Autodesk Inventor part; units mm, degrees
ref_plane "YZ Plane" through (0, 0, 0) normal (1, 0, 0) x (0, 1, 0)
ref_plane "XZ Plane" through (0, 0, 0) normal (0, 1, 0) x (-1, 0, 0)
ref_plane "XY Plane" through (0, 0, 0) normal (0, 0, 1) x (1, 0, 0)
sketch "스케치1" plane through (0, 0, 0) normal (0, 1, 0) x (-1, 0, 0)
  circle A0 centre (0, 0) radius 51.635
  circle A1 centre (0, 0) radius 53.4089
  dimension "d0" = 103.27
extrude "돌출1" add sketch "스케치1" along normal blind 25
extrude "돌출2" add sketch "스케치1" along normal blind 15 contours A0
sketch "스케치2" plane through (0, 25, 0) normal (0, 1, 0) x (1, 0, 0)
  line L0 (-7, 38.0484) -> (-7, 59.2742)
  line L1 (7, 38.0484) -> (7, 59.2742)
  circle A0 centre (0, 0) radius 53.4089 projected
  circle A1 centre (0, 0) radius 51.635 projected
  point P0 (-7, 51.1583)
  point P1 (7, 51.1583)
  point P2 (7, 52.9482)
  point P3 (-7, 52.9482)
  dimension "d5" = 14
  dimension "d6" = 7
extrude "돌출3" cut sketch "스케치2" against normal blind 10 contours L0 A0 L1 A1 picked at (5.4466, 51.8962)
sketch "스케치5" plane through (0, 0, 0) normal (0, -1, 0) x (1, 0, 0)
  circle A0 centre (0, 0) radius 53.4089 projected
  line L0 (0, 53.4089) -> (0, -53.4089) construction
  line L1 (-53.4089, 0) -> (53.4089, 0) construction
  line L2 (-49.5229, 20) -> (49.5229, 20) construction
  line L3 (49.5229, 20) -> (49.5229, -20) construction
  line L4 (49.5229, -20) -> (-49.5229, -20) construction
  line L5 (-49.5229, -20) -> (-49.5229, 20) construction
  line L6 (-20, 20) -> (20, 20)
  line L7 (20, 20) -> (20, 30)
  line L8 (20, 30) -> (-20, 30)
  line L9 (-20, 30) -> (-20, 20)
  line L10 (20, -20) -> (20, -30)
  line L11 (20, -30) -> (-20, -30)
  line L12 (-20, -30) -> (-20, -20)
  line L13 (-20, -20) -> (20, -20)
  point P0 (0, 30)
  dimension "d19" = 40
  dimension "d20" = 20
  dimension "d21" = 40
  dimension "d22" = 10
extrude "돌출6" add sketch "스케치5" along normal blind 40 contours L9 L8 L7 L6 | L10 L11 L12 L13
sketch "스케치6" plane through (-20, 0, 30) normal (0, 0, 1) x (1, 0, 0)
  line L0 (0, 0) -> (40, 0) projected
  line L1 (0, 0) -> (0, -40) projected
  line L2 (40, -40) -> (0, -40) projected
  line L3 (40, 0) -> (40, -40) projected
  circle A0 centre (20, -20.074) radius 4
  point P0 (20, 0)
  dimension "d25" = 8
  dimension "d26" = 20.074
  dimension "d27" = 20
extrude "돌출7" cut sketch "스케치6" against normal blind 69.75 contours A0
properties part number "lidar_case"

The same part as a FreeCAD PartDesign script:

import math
import FreeCAD as App
import Part
import Sketcher

V = App.Vector

doc = App.newDocument("Part")
body = doc.addObject("PartDesign::Body", "Body")

# Sketch on XZ plane
sketch1 = body.newObject("Sketcher::SketchObject", "Sketch")
sketch1.AttachmentSupport = (doc.getObject("XZ_Plane"), [""])
sketch1.MapMode = "FlatFace"
sketch1.addGeometry([
    Part.Circle(V(0, 0, 0), V(0, 0, 1), 53),
    Part.Circle(V(0, 0, 0), V(0, 0, 1), 52),
], False)
sketch1.addConstraint([
    Sketcher.Constraint("Coincident", 0, 3, -1, 1),
    Sketcher.Constraint("Coincident", 1, 3, -1, 1),
    Sketcher.Constraint("Diameter", 1, 103.27),
    Sketcher.Constraint("Diameter", 0, 106.8178),
])
pad1 = body.newObject("PartDesign::Pad", "Pad")
pad1.Profile = sketch1
pad1.Length = 25
pad1.Reversed = True

# Sketch on XZ plane
sketch2 = body.newObject("Sketcher::SketchObject", "Sketch001")
sketch2.AttachmentSupport = (doc.getObject("XZ_Plane"), [""])
sketch2.MapMode = "FlatFace"
sketch2.addGeometry(Part.Circle(V(0, 0, 0), V(0, 0, 1), 52), False)
sketch2.addConstraint([
    Sketcher.Constraint("Coincident", 0, 3, -1, 1),
    Sketcher.Constraint("Diameter", 0, 103.27),
])
pad2 = body.newObject("PartDesign::Pad", "Pad001")
pad2.Profile = sketch2
pad2.Length = 15
pad2.Reversed = True

# Sketch on XZ plane
sketch3 = body.newObject("Sketcher::SketchObject", "Sketch002")
sketch3.AttachmentSupport = (doc.getObject("XZ_Plane"), [""])
sketch3.MapMode = "FlatFace"
sketch3.AttachmentOffset = App.Placement(V(0, 0, -25), App.Rotation())
sketch3.addGeometry([
    Part.LineSegment(V(-7, -52.9, 0), V(-7, -51.2, 0)),
    Part.ArcOfCircle(Part.Circle(V(0, 0, 0), V(0, 0, 1), 51.6), math.radians(-97.79), math.radians(-82.21)),
    Part.LineSegment(V(7, -51.2, 0), V(7, -52.9, 0)),
    Part.ArcOfCircle(Part.Circle(V(0, 0, 0), V(0, 0, 1), 53.4), math.radians(-97.53), math.radians(-82.47)),
], False)
sketch3.addConstraint([
    Sketcher.Constraint("Coincident", 0, 2, 1, 1),
    Sketcher.Constraint("Coincident", 1, 2, 2, 1),
    Sketcher.Constraint("Coincident", 2, 2, 3, 2),
    Sketcher.Constraint("Coincident", 3, 1, 0, 1),
    Sketcher.Constraint("Vertical", 0),
    Sketcher.Constraint("Vertical", 2),
    Sketcher.Constraint("Coincident", 1, 3, -1, 1),
    Sketcher.Constraint("Coincident", 3, 3, -1, 1),
    Sketcher.Constraint("Horizontal", 0, 2, 1, 2),
    Sketcher.Constraint("DistanceX", 0, 2, -1, 1, 7.0),
    Sketcher.Constraint("Radius", 1, 51.635),
    Sketcher.Constraint("Radius", 3, 53.409),
])
pocket1 = body.newObject("PartDesign::Pocket", "Pocket")
pocket1.Profile = sketch3
pocket1.Length = 10
pocket1.Reversed = True

# Sketch on XZ plane
sketch4 = body.newObject("Sketcher::SketchObject", "Sketch003")
sketch4.AttachmentSupport = (doc.getObject("XZ_Plane"), [""])
sketch4.MapMode = "FlatFace"
sketch4.addGeometry([
    Part.LineSegment(V(-20, 30, 0), V(-20, 20, 0)),  # 0
    Part.LineSegment(V(-20, 20, 0), V(20, 20, 0)),  # 1
    Part.LineSegment(V(20, 20, 0), V(20, 30, 0)),  # 2
    Part.LineSegment(V(20, 30, 0), V(-20, 30, 0)),  # 3
    Part.LineSegment(V(20, -30, 0), V(20, -20, 0)),  # 4
    Part.LineSegment(V(20, -20, 0), V(-20, -20, 0)),  # 5
    Part.LineSegment(V(-20, -20, 0), V(-20, -30, 0)),  # 6
    Part.LineSegment(V(-20, -30, 0), V(20, -30, 0)),  # 7
], False)
sketch4.addConstraint([
    Sketcher.Constraint("Coincident", 0, 2, 1, 1),
    Sketcher.Constraint("Coincident", 1, 2, 2, 1),
    Sketcher.Constraint("Coincident", 2, 2, 3, 1),
    Sketcher.Constraint("Coincident", 3, 2, 0, 1),
    Sketcher.Constraint("Coincident", 4, 2, 5, 1),
    Sketcher.Constraint("Coincident", 5, 2, 6, 1),
    Sketcher.Constraint("Coincident", 6, 2, 7, 1),
    Sketcher.Constraint("Coincident", 7, 2, 4, 1),
    Sketcher.Constraint("Vertical", 0),
    Sketcher.Constraint("Horizontal", 1),
    Sketcher.Constraint("Vertical", 2),
    Sketcher.Constraint("Horizontal", 3),
    Sketcher.Constraint("Vertical", 4),
    Sketcher.Constraint("Horizontal", 5),
    Sketcher.Constraint("Vertical", 6),
    Sketcher.Constraint("Horizontal", 7),
    Sketcher.Constraint("Symmetric", 0, 2, 4, 2, -1, 1),
    Sketcher.Constraint("Symmetric", 2, 2, 6, 2, -1, 1),
    Sketcher.Constraint("Vertical", 2, 2, 4, 2),
    Sketcher.Constraint("DistanceX", 1, 1, 1, 2, 40.0),
    Sketcher.Constraint("DistanceY", 0, 2, 0, 1, 10.0),
    Sketcher.Constraint("DistanceY", -1, 1, 0, 2, 20.0),
])
pad3 = body.newObject("PartDesign::Pad", "Pad002")
pad3.Profile = sketch4
pad3.Length = 40

# Sketch on XY plane
sketch5 = body.newObject("Sketcher::SketchObject", "Sketch004")
sketch5.AttachmentSupport = (doc.getObject("XY_Plane"), [""])
sketch5.MapMode = "FlatFace"
sketch5.AttachmentOffset = App.Placement(V(0, 0, 30), App.Rotation())
sketch5.addGeometry(Part.Circle(V(0, -20.1, 0), V(0, 0, 1), 4), False)
sketch5.addConstraint([
    Sketcher.Constraint("PointOnObject", 0, 3, -2),
    Sketcher.Constraint("Diameter", 0, 8.0),
    Sketcher.Constraint("DistanceY", 0, 3, -1, 1, 20.074),
])
pocket2 = body.newObject("PartDesign::Pocket", "Pocket001")
pocket2.Profile = sketch5
pocket2.Length = 69.75

doc.recompute()
